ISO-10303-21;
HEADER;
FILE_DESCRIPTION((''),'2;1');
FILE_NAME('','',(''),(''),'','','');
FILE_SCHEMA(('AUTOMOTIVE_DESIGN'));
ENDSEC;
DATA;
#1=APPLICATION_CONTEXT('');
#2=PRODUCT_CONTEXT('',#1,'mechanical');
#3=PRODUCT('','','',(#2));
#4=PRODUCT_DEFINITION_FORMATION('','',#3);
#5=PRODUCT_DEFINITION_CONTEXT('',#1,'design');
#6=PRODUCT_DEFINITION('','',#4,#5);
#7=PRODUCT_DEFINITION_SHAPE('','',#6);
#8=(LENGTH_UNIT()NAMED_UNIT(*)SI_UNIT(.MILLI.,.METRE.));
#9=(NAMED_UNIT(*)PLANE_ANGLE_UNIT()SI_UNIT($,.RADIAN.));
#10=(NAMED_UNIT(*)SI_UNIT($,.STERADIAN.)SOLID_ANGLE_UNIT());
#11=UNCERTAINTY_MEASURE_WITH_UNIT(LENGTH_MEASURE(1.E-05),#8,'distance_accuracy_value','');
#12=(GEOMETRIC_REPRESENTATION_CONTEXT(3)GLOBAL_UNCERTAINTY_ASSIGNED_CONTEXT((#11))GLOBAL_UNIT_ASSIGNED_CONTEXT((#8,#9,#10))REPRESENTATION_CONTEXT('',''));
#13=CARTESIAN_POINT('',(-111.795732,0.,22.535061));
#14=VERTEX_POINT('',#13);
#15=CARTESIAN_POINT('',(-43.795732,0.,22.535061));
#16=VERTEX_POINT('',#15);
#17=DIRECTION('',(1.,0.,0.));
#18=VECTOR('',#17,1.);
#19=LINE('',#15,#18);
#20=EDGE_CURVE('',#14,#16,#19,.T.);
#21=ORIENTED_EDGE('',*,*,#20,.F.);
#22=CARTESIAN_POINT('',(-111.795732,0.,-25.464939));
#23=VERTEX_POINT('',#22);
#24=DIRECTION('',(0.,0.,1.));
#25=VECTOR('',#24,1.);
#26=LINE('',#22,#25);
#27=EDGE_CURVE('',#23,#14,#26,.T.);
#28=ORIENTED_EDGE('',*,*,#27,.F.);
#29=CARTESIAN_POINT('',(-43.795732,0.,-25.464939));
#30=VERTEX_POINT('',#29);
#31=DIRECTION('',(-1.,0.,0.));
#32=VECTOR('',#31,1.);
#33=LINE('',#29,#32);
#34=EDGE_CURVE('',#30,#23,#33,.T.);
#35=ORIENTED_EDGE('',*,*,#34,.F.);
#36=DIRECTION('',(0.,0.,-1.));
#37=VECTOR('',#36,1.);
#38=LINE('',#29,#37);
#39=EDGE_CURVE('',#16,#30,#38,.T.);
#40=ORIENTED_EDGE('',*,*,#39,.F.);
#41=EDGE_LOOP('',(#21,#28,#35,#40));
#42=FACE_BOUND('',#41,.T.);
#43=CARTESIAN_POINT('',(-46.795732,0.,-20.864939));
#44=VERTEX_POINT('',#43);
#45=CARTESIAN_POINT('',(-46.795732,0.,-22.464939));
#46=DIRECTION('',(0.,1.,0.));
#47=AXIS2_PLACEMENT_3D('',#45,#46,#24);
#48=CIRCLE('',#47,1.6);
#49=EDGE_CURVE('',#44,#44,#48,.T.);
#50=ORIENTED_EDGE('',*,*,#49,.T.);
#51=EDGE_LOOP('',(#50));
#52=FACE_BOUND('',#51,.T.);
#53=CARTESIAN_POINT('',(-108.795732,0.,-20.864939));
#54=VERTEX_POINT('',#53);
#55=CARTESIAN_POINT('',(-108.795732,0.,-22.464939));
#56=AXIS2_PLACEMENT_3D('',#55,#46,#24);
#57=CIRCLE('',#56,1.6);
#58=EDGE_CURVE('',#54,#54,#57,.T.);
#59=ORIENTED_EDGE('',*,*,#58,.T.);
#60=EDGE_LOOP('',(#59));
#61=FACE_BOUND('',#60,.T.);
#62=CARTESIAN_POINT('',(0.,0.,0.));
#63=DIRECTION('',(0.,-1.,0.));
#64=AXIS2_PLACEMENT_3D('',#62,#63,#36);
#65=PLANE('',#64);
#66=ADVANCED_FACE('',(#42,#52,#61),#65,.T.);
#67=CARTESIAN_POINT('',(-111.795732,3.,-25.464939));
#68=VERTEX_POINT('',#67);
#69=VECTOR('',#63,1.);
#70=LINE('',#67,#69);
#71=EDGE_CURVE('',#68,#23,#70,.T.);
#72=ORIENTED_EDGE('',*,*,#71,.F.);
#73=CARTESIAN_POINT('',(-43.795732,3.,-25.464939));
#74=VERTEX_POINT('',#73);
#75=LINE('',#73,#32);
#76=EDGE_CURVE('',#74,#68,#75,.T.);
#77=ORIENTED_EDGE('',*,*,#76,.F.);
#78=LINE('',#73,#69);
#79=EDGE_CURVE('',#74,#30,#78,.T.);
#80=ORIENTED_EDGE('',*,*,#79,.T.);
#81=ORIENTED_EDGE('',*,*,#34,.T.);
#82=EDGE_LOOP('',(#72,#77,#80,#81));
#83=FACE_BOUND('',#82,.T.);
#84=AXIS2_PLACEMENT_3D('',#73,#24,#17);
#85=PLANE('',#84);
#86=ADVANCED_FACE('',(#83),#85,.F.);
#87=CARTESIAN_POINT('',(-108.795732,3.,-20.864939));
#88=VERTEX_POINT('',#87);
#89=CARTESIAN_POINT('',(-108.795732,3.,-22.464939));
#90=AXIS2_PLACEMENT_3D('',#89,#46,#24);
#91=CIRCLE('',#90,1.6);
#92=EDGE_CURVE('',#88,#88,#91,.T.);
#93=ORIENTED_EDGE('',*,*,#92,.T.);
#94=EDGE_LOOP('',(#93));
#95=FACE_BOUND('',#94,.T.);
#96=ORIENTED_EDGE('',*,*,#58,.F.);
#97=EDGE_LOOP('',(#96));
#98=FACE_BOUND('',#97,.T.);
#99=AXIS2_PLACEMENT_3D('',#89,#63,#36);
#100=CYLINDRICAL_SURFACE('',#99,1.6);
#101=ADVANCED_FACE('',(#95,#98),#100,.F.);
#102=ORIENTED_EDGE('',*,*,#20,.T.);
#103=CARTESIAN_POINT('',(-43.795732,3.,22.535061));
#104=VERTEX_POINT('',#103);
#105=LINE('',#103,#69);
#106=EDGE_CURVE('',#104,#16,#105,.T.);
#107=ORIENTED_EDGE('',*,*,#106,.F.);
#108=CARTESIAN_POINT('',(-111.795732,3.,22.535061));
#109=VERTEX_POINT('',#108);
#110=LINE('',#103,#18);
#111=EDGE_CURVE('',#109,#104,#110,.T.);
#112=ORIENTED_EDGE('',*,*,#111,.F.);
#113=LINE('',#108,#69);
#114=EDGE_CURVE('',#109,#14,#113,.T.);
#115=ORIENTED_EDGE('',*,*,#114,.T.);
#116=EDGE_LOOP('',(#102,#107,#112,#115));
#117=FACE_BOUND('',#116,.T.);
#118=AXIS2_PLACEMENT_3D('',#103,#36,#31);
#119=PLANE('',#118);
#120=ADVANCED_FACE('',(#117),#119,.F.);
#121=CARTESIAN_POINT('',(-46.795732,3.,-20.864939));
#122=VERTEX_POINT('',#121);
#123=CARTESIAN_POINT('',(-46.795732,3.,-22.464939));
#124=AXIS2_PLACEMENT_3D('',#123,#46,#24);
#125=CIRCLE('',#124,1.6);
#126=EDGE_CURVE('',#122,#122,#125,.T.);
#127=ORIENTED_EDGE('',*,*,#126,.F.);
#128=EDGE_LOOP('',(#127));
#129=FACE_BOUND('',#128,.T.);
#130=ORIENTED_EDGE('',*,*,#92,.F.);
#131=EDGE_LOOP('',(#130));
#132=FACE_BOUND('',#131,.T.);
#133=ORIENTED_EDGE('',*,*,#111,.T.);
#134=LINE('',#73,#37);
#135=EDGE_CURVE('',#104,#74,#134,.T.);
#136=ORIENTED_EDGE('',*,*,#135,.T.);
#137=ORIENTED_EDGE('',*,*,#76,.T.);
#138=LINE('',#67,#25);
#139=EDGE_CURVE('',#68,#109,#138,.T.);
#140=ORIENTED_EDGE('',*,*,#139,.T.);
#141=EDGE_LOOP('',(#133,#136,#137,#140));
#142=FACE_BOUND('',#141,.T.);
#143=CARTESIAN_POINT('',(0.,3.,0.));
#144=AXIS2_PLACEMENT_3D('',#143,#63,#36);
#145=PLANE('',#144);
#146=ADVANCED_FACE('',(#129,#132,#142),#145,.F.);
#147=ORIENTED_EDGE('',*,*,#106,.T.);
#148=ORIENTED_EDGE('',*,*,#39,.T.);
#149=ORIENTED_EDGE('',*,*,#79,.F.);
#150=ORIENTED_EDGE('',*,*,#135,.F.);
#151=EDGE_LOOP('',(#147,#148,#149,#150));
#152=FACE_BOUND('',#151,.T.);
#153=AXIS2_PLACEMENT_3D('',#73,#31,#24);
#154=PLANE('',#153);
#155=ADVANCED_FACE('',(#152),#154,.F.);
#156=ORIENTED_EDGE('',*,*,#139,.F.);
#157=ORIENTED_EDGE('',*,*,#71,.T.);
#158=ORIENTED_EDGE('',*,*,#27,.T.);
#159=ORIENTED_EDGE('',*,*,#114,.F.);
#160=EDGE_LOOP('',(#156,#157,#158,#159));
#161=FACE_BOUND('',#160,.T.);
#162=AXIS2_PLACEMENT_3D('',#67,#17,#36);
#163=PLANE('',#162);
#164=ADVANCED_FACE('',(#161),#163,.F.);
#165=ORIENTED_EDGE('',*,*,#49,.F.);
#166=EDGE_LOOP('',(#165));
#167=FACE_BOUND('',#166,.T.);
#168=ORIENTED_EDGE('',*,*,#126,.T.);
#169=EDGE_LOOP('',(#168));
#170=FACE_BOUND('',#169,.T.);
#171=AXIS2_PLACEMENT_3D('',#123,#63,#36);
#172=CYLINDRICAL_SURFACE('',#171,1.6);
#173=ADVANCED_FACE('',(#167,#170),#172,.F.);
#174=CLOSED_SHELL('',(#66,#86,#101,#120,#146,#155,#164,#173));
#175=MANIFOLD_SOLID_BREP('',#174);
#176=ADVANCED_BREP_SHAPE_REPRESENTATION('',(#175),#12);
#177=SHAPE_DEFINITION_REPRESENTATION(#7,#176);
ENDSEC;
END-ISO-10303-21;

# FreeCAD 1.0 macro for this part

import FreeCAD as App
import Part
import Sketcher

V = App.Vector


def add_polygon(sketch, points):
    """Adds a closed chain of lines whose ends are joined by coincident constraints."""
    first, n = sketch.GeometryCount, len(points)
    for a, b in zip(points, points[1:] + points[:1]):
        sketch.addGeometry(Part.LineSegment(App.Vector(*a, 0), App.Vector(*b, 0)), False)
    for i in range(n):
        sketch.addConstraint(Sketcher.Constraint("Coincident", first + i, 2, first + (i + 1) % n, 1))

doc = App.newDocument("Part")
body = doc.addObject("PartDesign::Body", "Body")

sketch1 = doc.addObject("Sketcher::SketchObject", "Sketch")
body.addObject(sketch1)
sketch1.AttachmentSupport = (doc.XZ_Plane, [""])
sketch1.MapMode = "FlatFace"
add_polygon(sketch1, [(-111.795732, -25.464939), (-111.795732, 22.535061), (-43.795732, 22.535061), (-43.795732, -25.464939)])
sketch1.addGeometry(Part.Circle(V(-108.795732, -22.464939, 0), V(0, 0, 1), 1.6), False)
sketch1.addGeometry(Part.Circle(V(-46.795732, -22.464939, 0), V(0, 0, 1), 1.6), False)
sketch1.addConstraint([
    Sketcher.Constraint("Vertical", 0),
    Sketcher.Constraint("Horizontal", 1),
    Sketcher.Constraint("Vertical", 2),
    Sketcher.Constraint("Horizontal", 3),
    Sketcher.Constraint("Equal", 4, 5),
    Sketcher.Constraint("Horizontal", 4, 3, 5, 3),
    Sketcher.Constraint("Diameter", 4, 3.2),
    Sketcher.Constraint("DistanceX", 1, 1, 1, 2, 68.0),
    Sketcher.Constraint("DistanceY", 0, 1, 0, 2, 48.0),
    Sketcher.Constraint("DistanceX", 4, 3, 5, 3, 62.0),
    Sketcher.Constraint("DistanceX", 0, 2, 4, 3, 3.0),
    Sketcher.Constraint("DistanceY", 4, 3, 0, 2, 45.0),
    Sketcher.Constraint("DistanceX", 4, 3, -1, 1, 108.795732),
    Sketcher.Constraint("DistanceY", 4, 3, -1, 1, 22.464939),
])
pad1 = doc.addObject("PartDesign::Pad", "Pad")
body.addObject(pad1)
pad1.Profile = sketch1
pad1.Length = 3
pad1.Reversed = True

doc.recompute()
